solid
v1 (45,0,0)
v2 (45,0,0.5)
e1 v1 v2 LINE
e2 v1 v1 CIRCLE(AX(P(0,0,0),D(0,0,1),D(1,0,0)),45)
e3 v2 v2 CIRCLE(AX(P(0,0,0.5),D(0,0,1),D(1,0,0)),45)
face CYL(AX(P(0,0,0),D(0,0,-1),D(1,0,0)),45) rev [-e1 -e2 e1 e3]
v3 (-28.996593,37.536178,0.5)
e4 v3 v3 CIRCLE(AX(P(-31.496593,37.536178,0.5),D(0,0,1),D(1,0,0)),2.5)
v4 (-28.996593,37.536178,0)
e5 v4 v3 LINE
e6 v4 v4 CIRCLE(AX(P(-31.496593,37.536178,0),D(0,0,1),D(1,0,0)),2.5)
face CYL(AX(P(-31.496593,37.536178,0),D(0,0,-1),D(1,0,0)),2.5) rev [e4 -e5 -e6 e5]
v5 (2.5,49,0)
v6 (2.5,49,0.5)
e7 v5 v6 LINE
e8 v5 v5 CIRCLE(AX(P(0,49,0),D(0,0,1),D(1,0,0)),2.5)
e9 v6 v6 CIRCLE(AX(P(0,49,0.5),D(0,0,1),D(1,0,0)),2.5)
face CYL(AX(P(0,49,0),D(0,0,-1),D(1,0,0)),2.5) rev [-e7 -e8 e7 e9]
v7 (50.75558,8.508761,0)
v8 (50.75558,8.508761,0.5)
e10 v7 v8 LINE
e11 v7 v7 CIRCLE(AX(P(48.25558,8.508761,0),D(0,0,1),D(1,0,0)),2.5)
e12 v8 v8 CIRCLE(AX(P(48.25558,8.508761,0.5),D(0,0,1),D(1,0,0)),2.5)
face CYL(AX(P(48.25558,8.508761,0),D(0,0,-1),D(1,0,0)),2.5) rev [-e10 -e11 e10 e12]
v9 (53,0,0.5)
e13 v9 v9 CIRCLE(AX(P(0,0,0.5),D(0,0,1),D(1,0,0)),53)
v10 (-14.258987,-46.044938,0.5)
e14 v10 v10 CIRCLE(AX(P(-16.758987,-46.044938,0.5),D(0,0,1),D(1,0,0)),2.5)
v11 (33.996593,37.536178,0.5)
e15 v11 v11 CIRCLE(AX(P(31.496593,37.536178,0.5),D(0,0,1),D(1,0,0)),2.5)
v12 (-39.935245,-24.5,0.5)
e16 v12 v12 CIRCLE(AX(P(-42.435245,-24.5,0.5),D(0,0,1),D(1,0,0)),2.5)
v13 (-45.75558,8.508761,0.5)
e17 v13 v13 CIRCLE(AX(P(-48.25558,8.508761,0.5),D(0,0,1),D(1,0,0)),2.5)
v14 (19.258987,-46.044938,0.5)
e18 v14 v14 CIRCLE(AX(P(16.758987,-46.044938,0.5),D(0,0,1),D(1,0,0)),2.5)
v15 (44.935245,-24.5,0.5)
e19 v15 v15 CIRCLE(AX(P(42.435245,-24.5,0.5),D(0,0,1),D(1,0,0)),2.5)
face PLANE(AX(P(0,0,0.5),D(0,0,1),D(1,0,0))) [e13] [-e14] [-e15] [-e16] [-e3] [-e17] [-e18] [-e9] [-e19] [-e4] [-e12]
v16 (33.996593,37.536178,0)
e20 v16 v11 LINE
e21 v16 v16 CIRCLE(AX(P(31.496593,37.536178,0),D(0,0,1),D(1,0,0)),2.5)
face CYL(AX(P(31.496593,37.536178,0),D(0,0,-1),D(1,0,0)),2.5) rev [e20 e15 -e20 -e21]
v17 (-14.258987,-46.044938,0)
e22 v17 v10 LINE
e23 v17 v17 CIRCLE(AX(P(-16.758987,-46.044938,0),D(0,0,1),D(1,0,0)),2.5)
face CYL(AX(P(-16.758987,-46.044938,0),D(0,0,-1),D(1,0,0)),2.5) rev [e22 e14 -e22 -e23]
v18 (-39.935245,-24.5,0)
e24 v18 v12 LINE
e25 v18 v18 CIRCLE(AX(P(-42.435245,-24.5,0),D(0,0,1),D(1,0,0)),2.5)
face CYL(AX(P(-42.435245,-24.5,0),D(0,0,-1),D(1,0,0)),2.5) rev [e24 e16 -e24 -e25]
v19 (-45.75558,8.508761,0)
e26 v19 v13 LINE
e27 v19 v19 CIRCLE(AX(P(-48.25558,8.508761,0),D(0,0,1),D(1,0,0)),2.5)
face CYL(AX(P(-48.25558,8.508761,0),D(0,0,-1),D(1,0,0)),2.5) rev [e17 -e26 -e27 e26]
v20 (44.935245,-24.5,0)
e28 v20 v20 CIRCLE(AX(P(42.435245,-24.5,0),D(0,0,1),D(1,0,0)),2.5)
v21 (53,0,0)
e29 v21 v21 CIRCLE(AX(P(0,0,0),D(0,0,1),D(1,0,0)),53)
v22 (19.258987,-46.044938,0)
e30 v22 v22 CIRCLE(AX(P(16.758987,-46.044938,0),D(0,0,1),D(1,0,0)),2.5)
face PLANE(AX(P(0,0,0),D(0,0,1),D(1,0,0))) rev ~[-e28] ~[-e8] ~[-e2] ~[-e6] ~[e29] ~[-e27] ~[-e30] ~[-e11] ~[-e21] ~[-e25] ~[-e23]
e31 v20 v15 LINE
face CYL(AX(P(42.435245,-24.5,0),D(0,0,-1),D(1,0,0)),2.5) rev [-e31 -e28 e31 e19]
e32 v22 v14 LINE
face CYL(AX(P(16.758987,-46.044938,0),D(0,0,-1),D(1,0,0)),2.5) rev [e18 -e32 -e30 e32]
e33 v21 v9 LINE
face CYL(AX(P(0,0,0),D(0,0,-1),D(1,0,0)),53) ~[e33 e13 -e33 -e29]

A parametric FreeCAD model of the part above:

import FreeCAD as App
import Part
import Sketcher

V = App.Vector

doc = App.newDocument("Part")
body = doc.addObject("PartDesign::Body", "Body")

# Sketch on XY plane
sketch1 = body.newObject("Sketcher::SketchObject", "Sketch")
sketch1.AttachmentSupport = (doc.getObject("XY_Plane"), [""])
sketch1.MapMode = "FlatFace"
sketch1.addGeometry(Part.Circle(V(0, 0, 0), V(0, 0, 1), 53), False)
sketch1.addGeometry(Part.Circle(V(-42.4, -24.5, 0), V(0, 0, 1), 2.5), False)
sketch1.addGeometry(Part.Circle(V(-16.8, -46, 0), V(0, 0, 1), 2.5), False)
sketch1.addGeometry(Part.Circle(V(16.8, -46, 0), V(0, 0, 1), 2.5), False)
sketch1.addGeometry(Part.Circle(V(42.4, -24.5, 0), V(0, 0, 1), 2.5), False)
sketch1.addGeometry(Part.Circle(V(0, 0, 0), V(0, 0, 1), 45), False)
sketch1.addGeometry(Part.Circle(V(-48.3, 8.5, 0), V(0, 0, 1), 2.5), False)
sketch1.addGeometry(Part.Circle(V(-31.5, 37.5, 0), V(0, 0, 1), 2.5), False)
sketch1.addGeometry(Part.Circle(V(48.3, 8.5, 0), V(0, 0, 1), 2.5), False)
sketch1.addGeometry(Part.Circle(V(0, 49, 0), V(0, 0, 1), 2.5), False)
sketch1.addGeometry(Part.Circle(V(31.5, 37.5, 0), V(0, 0, 1), 2.5), False)
sketch1.addConstraint(Sketcher.Constraint("Coincident", 0, 3, -1, 1))
sketch1.addConstraint(Sketcher.Constraint("Coincident", 5, 3, -1, 1))
sketch1.addConstraint(Sketcher.Constraint("Equal", 1, 2))
sketch1.addConstraint(Sketcher.Constraint("Equal", 2, 3))
sketch1.addConstraint(Sketcher.Constraint("Equal", 3, 4))
sketch1.addConstraint(Sketcher.Constraint("Equal", 4, 6))
sketch1.addConstraint(Sketcher.Constraint("Equal", 6, 7))
sketch1.addConstraint(Sketcher.Constraint("Equal", 7, 8))
sketch1.addConstraint(Sketcher.Constraint("Equal", 8, 9))
sketch1.addConstraint(Sketcher.Constraint("Equal", 9, 10))
sketch1.addConstraint(Sketcher.Constraint("Symmetric", 2, 3, 3, 3, -2))
sketch1.addConstraint(Sketcher.Constraint("Symmetric", 1, 3, 4, 3, -2))
sketch1.addConstraint(Sketcher.Constraint("Symmetric", 6, 3, 8, 3, -2))
sketch1.addConstraint(Sketcher.Constraint("Symmetric", 7, 3, 10, 3, -2))
sketch1.addConstraint(Sketcher.Constraint("PointOnObject", 9, 3, -2))
sketch1.addConstraint(Sketcher.Constraint("Diameter", 0, 106.0))
sketch1.addConstraint(Sketcher.Constraint("Diameter", 1, 5.0))
sketch1.addConstraint(Sketcher.Constraint("Diameter", 5, 90.0))
sketch1.addConstraint(Sketcher.Constraint("DistanceY", -1, 1, 9, 3, 49.0))
sketch1.addConstraint(Sketcher.Constraint("DistanceY", 1, 3, -1, 1, 24.5))
sketch1.addConstraint(Sketcher.Constraint("DistanceY", 2, 3, 6, 3, 54.553699))
sketch1.addConstraint(Sketcher.Constraint("DistanceY", 2, 3, -1, 1, 46.044938))
sketch1.addConstraint(Sketcher.Constraint("DistanceX", 6, 3, -1, 1, 48.25558))
sketch1.addConstraint(Sketcher.Constraint("DistanceX", 1, 3, 2, 3, 25.676258))
sketch1.addConstraint(Sketcher.Constraint("DistanceX", 1, 3, 4, 3, 84.87049))
sketch1.addConstraint(Sketcher.Constraint("DistanceX", 7, 3, -1, 1, 31.496593))
sketch1.addConstraint(Sketcher.Constraint("DistanceY", -1, 1, 7, 3, 37.536178))
pad1 = body.newObject("PartDesign::Pad", "Pad")
pad1.Profile = sketch1
pad1.Length = 0.5

doc.recompute()
